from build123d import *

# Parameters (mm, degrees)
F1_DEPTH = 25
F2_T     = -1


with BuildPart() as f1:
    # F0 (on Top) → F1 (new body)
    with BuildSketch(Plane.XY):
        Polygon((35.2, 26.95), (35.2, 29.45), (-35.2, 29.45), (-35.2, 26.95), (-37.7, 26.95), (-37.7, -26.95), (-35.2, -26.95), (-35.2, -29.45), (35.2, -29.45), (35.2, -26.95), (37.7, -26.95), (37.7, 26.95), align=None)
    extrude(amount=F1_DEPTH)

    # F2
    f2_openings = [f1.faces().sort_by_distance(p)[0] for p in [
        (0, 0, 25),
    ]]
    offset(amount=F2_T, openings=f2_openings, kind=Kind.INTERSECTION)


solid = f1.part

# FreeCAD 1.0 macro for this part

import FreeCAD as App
import Part
import Sketcher


def faces_at(feature, points):
    """Names of the faces that lie closest to the given points."""
    faces = feature.Shape.Faces
    near = lambda p: min(range(len(faces)), key=lambda i: faces[i].distToShape(Part.Vertex(*p))[0])
    return sorted({f"Face{near(p) + 1}" for p in points})

doc = App.newDocument("Part")
params = doc.addObject("Spreadsheet::Sheet", "Params")
for row, (alias, value) in enumerate([
    ("sketch1_width", "70.4 mm"),
    ("sketch1_width2", "2.5 mm"),
    ("sketch1_height", "53.9 mm"),
    ("pad1_length", "25 mm"),
    ("thickness_wall", "1 mm"),
], start=1):
    params.set(f"A{row}", alias)
    params.set(f"B{row}", "=" + value)
    params.setAlias(f"B{row}", alias)

body = doc.addObject("PartDesign::Body", "Body")

sketch1 = body.newObject("Sketcher::SketchObject", "Sketch")
sketch1.AttachmentSupport = (doc.getObject("XY_Plane"), [""])
sketch1.MapMode = "FlatFace"
sketch1.addGeometry([
    Part.LineSegment(App.Vector(35.2, 26.9, 0), App.Vector(35.2, 29.4, 0)),
    Part.LineSegment(App.Vector(35.2, 29.4, 0), App.Vector(-35.2, 29.4, 0)),
    Part.LineSegment(App.Vector(-35.2, 29.4, 0), App.Vector(-35.2, 26.9, 0)),
    Part.LineSegment(App.Vector(-35.2, 26.9, 0), App.Vector(-37.7, 26.9, 0)),
    Part.LineSegment(App.Vector(-37.7, 26.9, 0), App.Vector(-37.7, -26.9, 0)),
    Part.LineSegment(App.Vector(-37.7, -26.9, 0), App.Vector(-35.2, -26.9, 0)),
    Part.LineSegment(App.Vector(-35.2, -26.9, 0), App.Vector(-35.2, -29.4, 0)),
    Part.LineSegment(App.Vector(-35.2, -29.4, 0), App.Vector(35.2, -29.4, 0)),
    Part.LineSegment(App.Vector(35.2, -29.4, 0), App.Vector(35.2, -26.9, 0)),
    Part.LineSegment(App.Vector(35.2, -26.9, 0), App.Vector(37.7, -26.9, 0)),
    Part.LineSegment(App.Vector(37.7, -26.9, 0), App.Vector(37.7, 26.9, 0)),
    Part.LineSegment(App.Vector(37.7, 26.9, 0), App.Vector(35.2, 26.9, 0)),
], False)
sketch1.addConstraint([
    Sketcher.Constraint("Coincident", 0, 2, 1, 1),
    Sketcher.Constraint("Coincident", 1, 2, 2, 1),
    Sketcher.Constraint("Coincident", 2, 2, 3, 1),
    Sketcher.Constraint("Coincident", 3, 2, 4, 1),
    Sketcher.Constraint("Coincident", 4, 2, 5, 1),
    Sketcher.Constraint("Coincident", 5, 2, 6, 1),
    Sketcher.Constraint("Coincident", 6, 2, 7, 1),
    Sketcher.Constraint("Coincident", 7, 2, 8, 1),
    Sketcher.Constraint("Coincident", 8, 2, 9, 1),
    Sketcher.Constraint("Coincident", 9, 2, 10, 1),
    Sketcher.Constraint("Coincident", 10, 2, 11, 1),
    Sketcher.Constraint("Coincident", 11, 2, 0, 1),
    Sketcher.Constraint("Vertical", 0),
    Sketcher.Constraint("Horizontal", 1),
    Sketcher.Constraint("Vertical", 2),
    Sketcher.Constraint("Horizontal", 3),
    Sketcher.Constraint("Vertical", 4),
    Sketcher.Constraint("Horizontal", 5),
    Sketcher.Constraint("Vertical", 6),
    Sketcher.Constraint("Horizontal", 7),
    Sketcher.Constraint("Vertical", 8),
    Sketcher.Constraint("Horizontal", 9),
    Sketcher.Constraint("Vertical", 10),
    Sketcher.Constraint("Horizontal", 11),
    Sketcher.Constraint("Symmetric", 0, 2, 6, 2, -1, 1),
    Sketcher.Constraint("Symmetric", 2, 2, 8, 2, -1, 1),
    Sketcher.Constraint("Symmetric", 4, 2, 10, 2, -1, 1),
    Sketcher.Constraint("Symmetric", 5, 2, 8, 2, -2),
    Sketcher.Constraint("Equal", 11, 0),
    Sketcher.Constraint("DistanceX", 1, 2, 1, 1, 70.4),
    Sketcher.Constraint("DistanceX", 3, 2, 3, 1, 2.5),
    Sketcher.Constraint("DistanceY", 4, 2, 4, 1, 53.9),
])
sketch1.setExpression("Constraints[29]", "Params.sketch1_width")
sketch1.setExpression("Constraints[30]", "Params.sketch1_width2")
sketch1.setExpression("Constraints[31]", "Params.sketch1_height")
pad1 = body.newObject("PartDesign::Pad", "Pad")
pad1.Profile = sketch1
pad1.setExpression("Length", "Params.pad1_length")
doc.recompute()

thickness = body.newObject("PartDesign::Thickness", "Thickness")
thickness.Base = (pad1, faces_at(pad1, [(0, 0, 25)]))
thickness.setExpression("Value", "Params.thickness_wall")
thickness.Reversed = True
thickness.Join = "Intersection"

doc.recompute()
